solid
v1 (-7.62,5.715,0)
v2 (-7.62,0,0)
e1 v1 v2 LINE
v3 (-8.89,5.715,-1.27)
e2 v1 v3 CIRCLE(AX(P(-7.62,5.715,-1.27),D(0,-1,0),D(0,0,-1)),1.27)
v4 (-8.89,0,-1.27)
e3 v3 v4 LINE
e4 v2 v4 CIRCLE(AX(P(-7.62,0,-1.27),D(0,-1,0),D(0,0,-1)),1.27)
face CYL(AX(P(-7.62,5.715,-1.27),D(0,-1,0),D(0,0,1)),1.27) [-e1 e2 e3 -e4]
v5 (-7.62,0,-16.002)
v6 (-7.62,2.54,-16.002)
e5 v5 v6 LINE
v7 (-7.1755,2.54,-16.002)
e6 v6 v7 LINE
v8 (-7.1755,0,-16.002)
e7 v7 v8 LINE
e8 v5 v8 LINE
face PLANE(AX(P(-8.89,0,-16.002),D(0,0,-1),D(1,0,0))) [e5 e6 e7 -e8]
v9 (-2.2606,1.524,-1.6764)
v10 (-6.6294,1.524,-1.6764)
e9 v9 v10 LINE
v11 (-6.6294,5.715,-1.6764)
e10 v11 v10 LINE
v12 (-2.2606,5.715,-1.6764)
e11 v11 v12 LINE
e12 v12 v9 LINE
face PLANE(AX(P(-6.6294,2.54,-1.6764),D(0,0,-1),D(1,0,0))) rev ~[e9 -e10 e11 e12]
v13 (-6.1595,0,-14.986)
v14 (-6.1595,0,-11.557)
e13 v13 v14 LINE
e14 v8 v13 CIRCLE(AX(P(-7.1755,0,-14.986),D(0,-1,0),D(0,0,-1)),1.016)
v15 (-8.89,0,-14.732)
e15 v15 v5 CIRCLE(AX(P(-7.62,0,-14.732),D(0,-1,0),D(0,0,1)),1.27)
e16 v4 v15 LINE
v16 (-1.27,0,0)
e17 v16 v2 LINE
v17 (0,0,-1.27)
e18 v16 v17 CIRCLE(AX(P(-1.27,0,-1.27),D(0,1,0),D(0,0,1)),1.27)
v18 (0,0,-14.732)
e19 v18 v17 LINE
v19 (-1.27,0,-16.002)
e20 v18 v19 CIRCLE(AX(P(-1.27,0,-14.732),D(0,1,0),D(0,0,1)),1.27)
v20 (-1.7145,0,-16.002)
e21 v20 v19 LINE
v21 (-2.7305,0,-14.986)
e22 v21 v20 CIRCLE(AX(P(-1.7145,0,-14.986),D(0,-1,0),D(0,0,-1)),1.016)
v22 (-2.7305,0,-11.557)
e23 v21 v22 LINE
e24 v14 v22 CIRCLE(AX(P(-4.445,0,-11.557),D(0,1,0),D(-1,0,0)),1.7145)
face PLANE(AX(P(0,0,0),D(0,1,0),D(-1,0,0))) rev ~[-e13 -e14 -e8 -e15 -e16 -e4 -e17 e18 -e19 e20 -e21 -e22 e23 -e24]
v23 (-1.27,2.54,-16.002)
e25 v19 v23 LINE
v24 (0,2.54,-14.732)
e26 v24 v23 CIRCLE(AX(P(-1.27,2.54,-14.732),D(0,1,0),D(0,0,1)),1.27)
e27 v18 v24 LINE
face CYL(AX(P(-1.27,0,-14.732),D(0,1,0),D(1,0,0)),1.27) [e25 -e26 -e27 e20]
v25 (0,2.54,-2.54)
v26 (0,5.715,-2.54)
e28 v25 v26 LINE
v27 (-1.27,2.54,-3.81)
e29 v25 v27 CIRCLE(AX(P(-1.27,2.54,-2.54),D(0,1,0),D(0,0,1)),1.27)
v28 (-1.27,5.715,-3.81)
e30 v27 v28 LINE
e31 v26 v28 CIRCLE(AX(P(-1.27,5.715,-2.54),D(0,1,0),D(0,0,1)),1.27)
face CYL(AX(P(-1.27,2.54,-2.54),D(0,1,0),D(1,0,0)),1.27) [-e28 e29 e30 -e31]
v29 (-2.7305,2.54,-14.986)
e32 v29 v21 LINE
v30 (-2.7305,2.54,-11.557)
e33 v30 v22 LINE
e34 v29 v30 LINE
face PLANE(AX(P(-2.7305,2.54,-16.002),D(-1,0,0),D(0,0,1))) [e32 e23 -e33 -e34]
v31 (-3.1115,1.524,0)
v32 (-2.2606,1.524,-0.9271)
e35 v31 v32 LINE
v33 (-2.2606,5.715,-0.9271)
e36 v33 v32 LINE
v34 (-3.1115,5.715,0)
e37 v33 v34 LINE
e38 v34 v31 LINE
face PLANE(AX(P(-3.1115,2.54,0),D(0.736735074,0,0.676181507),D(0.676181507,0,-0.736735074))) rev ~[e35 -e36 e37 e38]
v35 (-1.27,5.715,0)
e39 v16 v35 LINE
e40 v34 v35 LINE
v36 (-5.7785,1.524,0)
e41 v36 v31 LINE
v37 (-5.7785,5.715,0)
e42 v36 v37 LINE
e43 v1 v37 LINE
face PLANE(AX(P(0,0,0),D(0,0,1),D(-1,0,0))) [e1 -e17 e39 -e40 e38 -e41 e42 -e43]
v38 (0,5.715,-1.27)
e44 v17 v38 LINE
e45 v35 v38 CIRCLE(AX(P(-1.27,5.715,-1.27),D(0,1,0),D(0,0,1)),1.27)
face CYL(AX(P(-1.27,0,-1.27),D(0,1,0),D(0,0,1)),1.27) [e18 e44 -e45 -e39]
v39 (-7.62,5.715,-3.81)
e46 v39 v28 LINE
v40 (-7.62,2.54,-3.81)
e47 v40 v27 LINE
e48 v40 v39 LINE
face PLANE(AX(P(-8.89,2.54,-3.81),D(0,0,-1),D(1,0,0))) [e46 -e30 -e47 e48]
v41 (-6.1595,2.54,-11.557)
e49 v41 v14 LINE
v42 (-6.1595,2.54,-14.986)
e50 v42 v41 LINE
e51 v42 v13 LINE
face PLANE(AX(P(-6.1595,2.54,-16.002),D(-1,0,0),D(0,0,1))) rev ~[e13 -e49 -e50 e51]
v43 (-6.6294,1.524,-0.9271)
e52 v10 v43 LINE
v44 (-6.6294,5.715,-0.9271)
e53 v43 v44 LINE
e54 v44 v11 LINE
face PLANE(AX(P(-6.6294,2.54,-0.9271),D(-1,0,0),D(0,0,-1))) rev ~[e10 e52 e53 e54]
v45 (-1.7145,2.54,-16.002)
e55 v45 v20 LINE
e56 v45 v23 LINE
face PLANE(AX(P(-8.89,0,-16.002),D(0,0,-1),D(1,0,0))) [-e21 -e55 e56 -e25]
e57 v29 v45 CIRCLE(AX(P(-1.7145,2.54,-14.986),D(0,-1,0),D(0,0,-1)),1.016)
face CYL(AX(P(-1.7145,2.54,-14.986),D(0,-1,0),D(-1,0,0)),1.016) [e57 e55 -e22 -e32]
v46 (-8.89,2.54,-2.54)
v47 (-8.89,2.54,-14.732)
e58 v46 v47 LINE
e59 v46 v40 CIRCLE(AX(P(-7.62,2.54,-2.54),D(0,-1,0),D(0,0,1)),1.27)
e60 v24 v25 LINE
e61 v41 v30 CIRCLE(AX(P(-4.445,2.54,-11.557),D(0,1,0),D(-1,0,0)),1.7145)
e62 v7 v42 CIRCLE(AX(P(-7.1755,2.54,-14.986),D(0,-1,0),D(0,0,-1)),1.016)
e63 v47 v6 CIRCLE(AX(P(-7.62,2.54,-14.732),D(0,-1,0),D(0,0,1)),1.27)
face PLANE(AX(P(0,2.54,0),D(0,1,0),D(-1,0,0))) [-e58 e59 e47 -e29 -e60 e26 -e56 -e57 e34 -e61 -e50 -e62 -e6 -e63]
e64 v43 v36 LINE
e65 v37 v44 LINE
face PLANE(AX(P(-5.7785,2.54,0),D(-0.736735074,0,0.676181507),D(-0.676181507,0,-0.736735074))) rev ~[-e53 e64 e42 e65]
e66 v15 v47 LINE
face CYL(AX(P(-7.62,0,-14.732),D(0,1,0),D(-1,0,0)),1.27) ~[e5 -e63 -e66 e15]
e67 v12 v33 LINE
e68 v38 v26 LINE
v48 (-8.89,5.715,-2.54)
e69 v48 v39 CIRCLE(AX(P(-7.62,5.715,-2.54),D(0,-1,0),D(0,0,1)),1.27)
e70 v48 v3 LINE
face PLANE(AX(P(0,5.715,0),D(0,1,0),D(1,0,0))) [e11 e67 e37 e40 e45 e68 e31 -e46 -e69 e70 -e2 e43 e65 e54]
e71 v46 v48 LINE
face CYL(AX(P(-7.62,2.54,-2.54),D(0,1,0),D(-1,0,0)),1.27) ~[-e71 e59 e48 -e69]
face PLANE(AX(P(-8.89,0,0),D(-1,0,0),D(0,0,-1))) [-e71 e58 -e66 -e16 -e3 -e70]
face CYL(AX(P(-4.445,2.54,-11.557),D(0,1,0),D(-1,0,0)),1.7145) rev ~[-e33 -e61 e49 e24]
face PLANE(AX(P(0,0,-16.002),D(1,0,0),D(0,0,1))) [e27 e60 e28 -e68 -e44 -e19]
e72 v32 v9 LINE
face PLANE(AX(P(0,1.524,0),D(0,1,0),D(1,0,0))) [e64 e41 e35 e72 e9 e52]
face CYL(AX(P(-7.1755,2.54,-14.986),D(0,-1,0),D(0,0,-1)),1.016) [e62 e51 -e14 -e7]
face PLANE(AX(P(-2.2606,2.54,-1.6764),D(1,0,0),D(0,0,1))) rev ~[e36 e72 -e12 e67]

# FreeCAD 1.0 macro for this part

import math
import FreeCAD as App
import Part
import Sketcher
from FreeCAD import Vector
Q = App.Units.Quantity


def edges_at(feature, points):
    """Names of the edges that pass closest to the given points."""
    edges = feature.Shape.Edges
    near = lambda p: min(range(len(edges)), key=lambda i: edges[i].distToShape(Part.Vertex(*p))[0])
    return sorted({f"Edge{near(p) + 1}" for p in points})

doc = App.newDocument("Part")
body = doc.addObject("PartDesign::Body", "Body")

# Sketch on XZ plane
sketch1 = doc.addObject("Sketcher::SketchObject", "Sketch")
body.addObject(sketch1)
sketch1.AttachmentSupport = (doc.XZ_Plane, [""])
sketch1.MapMode = "FlatFace"
sketch1.addGeometry([
    Part.LineSegment(Vector(-9, 0, 0), Vector(0, 0, 0)),
    Part.LineSegment(Vector(0, 0, 0), Vector(0, -16, 0)),
    Part.LineSegment(Vector(0, -16, 0), Vector(-9, -16, 0)),
    Part.LineSegment(Vector(-9, -16, 0), Vector(-9, 0, 0)),
], False)
sketch1.addConstraint([
    Sketcher.Constraint("Coincident", 0, 2, 1, 1),
    Sketcher.Constraint("Coincident", 1, 2, 2, 1),
    Sketcher.Constraint("Coincident", 2, 2, 3, 1),
    Sketcher.Constraint("Coincident", 3, 2, 0, 1),
    Sketcher.Constraint("Horizontal", 0),
    Sketcher.Constraint("Vertical", 1),
    Sketcher.Constraint("Horizontal", 2),
    Sketcher.Constraint("Vertical", 3),
    Sketcher.Constraint("Coincident", 0, 2, -1, 1),
    Sketcher.Constraint("DistanceX", 0, 1, 0, 2, Q("0.35 in")),
    Sketcher.Constraint("DistanceY", 1, 2, 1, 1, Q("0.63 in")),
])
pad1 = doc.addObject("PartDesign::Pad", "Pad")
body.addObject(pad1)
pad1.Profile = sketch1
pad1.Length = Q("0.1 in")
pad1.Reversed = True

# Sketch on XZ plane
sketch2 = doc.addObject("Sketcher::SketchObject", "Sketch001")
body.addObject(sketch2)
sketch2.AttachmentSupport = (doc.XZ_Plane, [""])
sketch2.MapMode = "FlatFace"
sketch2.AttachmentOffset = App.Placement(Vector(0, 0, -0.1 * 25.4), App.Rotation())
sketch2.addGeometry([
    Part.LineSegment(Vector(-8.9, -3.8, 0), Vector(-8.9, 0, 0)),  # 0
    Part.LineSegment(Vector(-8.9, 0, 0), Vector(-5.8, 0, 0)),  # 1
    Part.LineSegment(Vector(-5.8, 0, 0), Vector(-6.6, -0.9, 0)),  # 2
    Part.LineSegment(Vector(-6.6, -0.9, 0), Vector(-6.6, -1.7, 0)),  # 3
    Part.LineSegment(Vector(-6.6, -1.7, 0), Vector(-2.3, -1.7, 0)),  # 4
    Part.LineSegment(Vector(-2.3, -1.7, 0), Vector(-2.3, -0.9, 0)),  # 5
    Part.LineSegment(Vector(-2.3, -0.9, 0), Vector(-3.1, 0, 0)),  # 6
    Part.LineSegment(Vector(-3.1, 0, 0), Vector(0, 0, 0)),  # 7
    Part.LineSegment(Vector(0, 0, 0), Vector(0, -3.8, 0)),  # 8
    Part.LineSegment(Vector(0, -3.8, 0), Vector(-8.9, -3.8, 0)),  # 9
], False)
sketch2.addConstraint([
    Sketcher.Constraint("Coincident", 0, 2, 1, 1),
    Sketcher.Constraint("Coincident", 1, 2, 2, 1),
    Sketcher.Constraint("Coincident", 2, 2, 3, 1),
    Sketcher.Constraint("Coincident", 3, 2, 4, 1),
    Sketcher.Constraint("Coincident", 4, 2, 5, 1),
    Sketcher.Constraint("Coincident", 5, 2, 6, 1),
    Sketcher.Constraint("Coincident", 6, 2, 7, 1),
    Sketcher.Constraint("Coincident", 7, 2, 8, 1),
    Sketcher.Constraint("Coincident", 8, 2, 9, 1),
    Sketcher.Constraint("Coincident", 9, 2, 0, 1),
    Sketcher.Constraint("Vertical", 0),
    Sketcher.Constraint("Horizontal", 1),
    Sketcher.Constraint("Vertical", 3),
    Sketcher.Constraint("Horizontal", 4),
    Sketcher.Constraint("Vertical", 5),
    Sketcher.Constraint("Horizontal", 7),
    Sketcher.Constraint("Vertical", 8),
    Sketcher.Constraint("Horizontal", 9),
    Sketcher.Constraint("Coincident", 7, 2, -1, 1),
    Sketcher.Constraint("PointOnObject", 0, 2, -1),
    Sketcher.Constraint("Horizontal", 2, 2, 5, 2),
    Sketcher.Constraint("Equal", 1, 7),
    Sketcher.Constraint("Equal", 2, 6),
    Sketcher.Constraint("DistanceY", 0, 1, 0, 2, Q("0.15 in")),
    Sketcher.Constraint("DistanceX", 4, 1, 4, 2, Q("0.172 in")),
    Sketcher.Constraint("DistanceY", 3, 2, -1, 1, Q("0.066 in")),
    Sketcher.Constraint("DistanceX", 1, 2, 6, 2, Q("0.105 in")),
    Sketcher.Constraint("DistanceX", 9, 2, 9, 1, Q("0.35 in")),
    Sketcher.Constraint("DistanceY", 2, 2, -1, 1, Q("0.0365 in")),
])
pad2 = doc.addObject("PartDesign::Pad", "Pad001")
body.addObject(pad2)
pad2.Profile = sketch2
pad2.Length = Q("0.125 in")
pad2.Reversed = True

# Sketch on XZ plane
sketch3 = doc.addObject("Sketcher::SketchObject", "Sketch002")
body.addObject(sketch3)
sketch3.AttachmentSupport = (doc.XZ_Plane, [""])
sketch3.MapMode = "FlatFace"
sketch3.AttachmentOffset = App.Placement(Vector(0, 0, -0.1 * 25.4), App.Rotation())
sketch3.addGeometry([
    Part.LineSegment(Vector(-5.8, 0, 0), Vector(-3.1, 0, 0)),  # 0
    Part.LineSegment(Vector(-3.1, 0, 0), Vector(-2.3, -0.9, 0)),  # 1
    Part.LineSegment(Vector(-2.3, -0.9, 0), Vector(-2.3, -1.7, 0)),  # 2
    Part.LineSegment(Vector(-2.3, -1.7, 0), Vector(-6.6, -1.7, 0)),  # 3
    Part.LineSegment(Vector(-6.6, -1.7, 0), Vector(-6.6, -0.9, 0)),  # 4
    Part.LineSegment(Vector(-6.6, -0.9, 0), Vector(-5.8, 0, 0)),  # 5
], False)
sketch3.addConstraint([
    Sketcher.Constraint("Coincident", 0, 2, 1, 1),
    Sketcher.Constraint("Coincident", 1, 2, 2, 1),
    Sketcher.Constraint("Coincident", 2, 2, 3, 1),
    Sketcher.Constraint("Coincident", 3, 2, 4, 1),
    Sketcher.Constraint("Coincident", 4, 2, 5, 1),
    Sketcher.Constraint("Coincident", 5, 2, 0, 1),
    Sketcher.Constraint("Horizontal", 0),
    Sketcher.Constraint("Vertical", 2),
    Sketcher.Constraint("Horizontal", 3),
    Sketcher.Constraint("Vertical", 4),
    Sketcher.Constraint("PointOnObject", 0, 2, -1),
    Sketcher.Constraint("Horizontal", 1, 2, 4, 2),
    Sketcher.Constraint("Equal", 1, 5),
    Sketcher.Constraint("DistanceX", 0, 1, 0, 2, Q("0.105 in")),
    Sketcher.Constraint("DistanceX", 3, 2, 3, 1, Q("0.172 in")),
    Sketcher.Constraint("DistanceY", 2, 2, 2, 1, Q("0.0295 in")),
    Sketcher.Constraint("DistanceX", 1, 2, -1, 1, Q("0.089 in")),
    Sketcher.Constraint("DistanceY", 2, 2, -1, 1, Q("0.066 in")),
])
pocket1 = doc.addObject("PartDesign::Pocket", "Pocket")
body.addObject(pocket1)
pocket1.Profile = sketch3
pocket1.Length = Q("0.04 in")
pocket1.Reversed = True
doc.recompute()

fillet = doc.addObject("PartDesign::Fillet", "Fillet")
body.addObject(fillet)
fillet.Base = (pocket1, edges_at(pocket1, [
    (-8.89, 1.27, -16.002),
    (0, 1.27, -16.002),
    (-8.89, 2.857, 0),
    (-8.89, 4.128, -3.81),
    (0, 4.128, -3.81),
    (0, 2.857, 0),
]))
fillet.Radius = Q("0.05 in")

# Sketch on XZ plane
sketch4 = doc.addObject("Sketcher::SketchObject", "Sketch003")
body.addObject(sketch4)
sketch4.AttachmentSupport = (doc.XZ_Plane, [""])
sketch4.MapMode = "FlatFace"
sketch4.AttachmentOffset = App.Placement(Vector(0, 0, -0.1 * 25.4), App.Rotation())
sketch4.addGeometry([
    Part.LineSegment(Vector(-2.7, -16, 0), Vector(-6.2, -16, 0)),
    Part.LineSegment(Vector(-6.2, -16, 0), Vector(-6.2, -11.6, 0)),
    Part.ArcOfCircle(Part.Circle(Vector(-4.4, -11.6, 0), Vector(0, 0, 1), 1.7), math.radians(0), math.radians(180)),
    Part.LineSegment(Vector(-2.7, -11.6, 0), Vector(-2.7, -16, 0)),
], False)
sketch4.addConstraint([
    Sketcher.Constraint("Coincident", 0, 2, 1, 1),
    Sketcher.Constraint("Tangent", 1, 2, 2, 2),
    Sketcher.Constraint("Tangent", 2, 1, 3, 1),
    Sketcher.Constraint("Coincident", 3, 2, 0, 1),
    Sketcher.Constraint("Horizontal", 0),
    Sketcher.Constraint("Vertical", 1),
    Sketcher.Constraint("Vertical", 3),
    Sketcher.Constraint("Radius", 2, Q("0.0675 in")),
    Sketcher.Constraint("DistanceY", 1, 1, 1, 2, Q("0.175 in")),
    Sketcher.Constraint("DistanceX", 2, 3, -1, 1, Q("0.175 in")),
    Sketcher.Constraint("DistanceY", 0, 2, -1, 1, Q("0.63 in")),
])
pocket2 = doc.addObject("PartDesign::Pocket", "Pocket001")
body.addObject(pocket2)
pocket2.Profile = sketch4
pocket2.Length = Q("1 in")
pocket2.Reversed = True
doc.recompute()

fillet2 = doc.addObject("PartDesign::Fillet", "Fillet001")
body.addObject(fillet2)
fillet2.Base = (pocket2, edges_at(pocket2, [(-2.731, 1.27, -16.002), (-6.16, 1.27, -16.002)]))
fillet2.Radius = Q("0.04 in")

doc.recompute()
